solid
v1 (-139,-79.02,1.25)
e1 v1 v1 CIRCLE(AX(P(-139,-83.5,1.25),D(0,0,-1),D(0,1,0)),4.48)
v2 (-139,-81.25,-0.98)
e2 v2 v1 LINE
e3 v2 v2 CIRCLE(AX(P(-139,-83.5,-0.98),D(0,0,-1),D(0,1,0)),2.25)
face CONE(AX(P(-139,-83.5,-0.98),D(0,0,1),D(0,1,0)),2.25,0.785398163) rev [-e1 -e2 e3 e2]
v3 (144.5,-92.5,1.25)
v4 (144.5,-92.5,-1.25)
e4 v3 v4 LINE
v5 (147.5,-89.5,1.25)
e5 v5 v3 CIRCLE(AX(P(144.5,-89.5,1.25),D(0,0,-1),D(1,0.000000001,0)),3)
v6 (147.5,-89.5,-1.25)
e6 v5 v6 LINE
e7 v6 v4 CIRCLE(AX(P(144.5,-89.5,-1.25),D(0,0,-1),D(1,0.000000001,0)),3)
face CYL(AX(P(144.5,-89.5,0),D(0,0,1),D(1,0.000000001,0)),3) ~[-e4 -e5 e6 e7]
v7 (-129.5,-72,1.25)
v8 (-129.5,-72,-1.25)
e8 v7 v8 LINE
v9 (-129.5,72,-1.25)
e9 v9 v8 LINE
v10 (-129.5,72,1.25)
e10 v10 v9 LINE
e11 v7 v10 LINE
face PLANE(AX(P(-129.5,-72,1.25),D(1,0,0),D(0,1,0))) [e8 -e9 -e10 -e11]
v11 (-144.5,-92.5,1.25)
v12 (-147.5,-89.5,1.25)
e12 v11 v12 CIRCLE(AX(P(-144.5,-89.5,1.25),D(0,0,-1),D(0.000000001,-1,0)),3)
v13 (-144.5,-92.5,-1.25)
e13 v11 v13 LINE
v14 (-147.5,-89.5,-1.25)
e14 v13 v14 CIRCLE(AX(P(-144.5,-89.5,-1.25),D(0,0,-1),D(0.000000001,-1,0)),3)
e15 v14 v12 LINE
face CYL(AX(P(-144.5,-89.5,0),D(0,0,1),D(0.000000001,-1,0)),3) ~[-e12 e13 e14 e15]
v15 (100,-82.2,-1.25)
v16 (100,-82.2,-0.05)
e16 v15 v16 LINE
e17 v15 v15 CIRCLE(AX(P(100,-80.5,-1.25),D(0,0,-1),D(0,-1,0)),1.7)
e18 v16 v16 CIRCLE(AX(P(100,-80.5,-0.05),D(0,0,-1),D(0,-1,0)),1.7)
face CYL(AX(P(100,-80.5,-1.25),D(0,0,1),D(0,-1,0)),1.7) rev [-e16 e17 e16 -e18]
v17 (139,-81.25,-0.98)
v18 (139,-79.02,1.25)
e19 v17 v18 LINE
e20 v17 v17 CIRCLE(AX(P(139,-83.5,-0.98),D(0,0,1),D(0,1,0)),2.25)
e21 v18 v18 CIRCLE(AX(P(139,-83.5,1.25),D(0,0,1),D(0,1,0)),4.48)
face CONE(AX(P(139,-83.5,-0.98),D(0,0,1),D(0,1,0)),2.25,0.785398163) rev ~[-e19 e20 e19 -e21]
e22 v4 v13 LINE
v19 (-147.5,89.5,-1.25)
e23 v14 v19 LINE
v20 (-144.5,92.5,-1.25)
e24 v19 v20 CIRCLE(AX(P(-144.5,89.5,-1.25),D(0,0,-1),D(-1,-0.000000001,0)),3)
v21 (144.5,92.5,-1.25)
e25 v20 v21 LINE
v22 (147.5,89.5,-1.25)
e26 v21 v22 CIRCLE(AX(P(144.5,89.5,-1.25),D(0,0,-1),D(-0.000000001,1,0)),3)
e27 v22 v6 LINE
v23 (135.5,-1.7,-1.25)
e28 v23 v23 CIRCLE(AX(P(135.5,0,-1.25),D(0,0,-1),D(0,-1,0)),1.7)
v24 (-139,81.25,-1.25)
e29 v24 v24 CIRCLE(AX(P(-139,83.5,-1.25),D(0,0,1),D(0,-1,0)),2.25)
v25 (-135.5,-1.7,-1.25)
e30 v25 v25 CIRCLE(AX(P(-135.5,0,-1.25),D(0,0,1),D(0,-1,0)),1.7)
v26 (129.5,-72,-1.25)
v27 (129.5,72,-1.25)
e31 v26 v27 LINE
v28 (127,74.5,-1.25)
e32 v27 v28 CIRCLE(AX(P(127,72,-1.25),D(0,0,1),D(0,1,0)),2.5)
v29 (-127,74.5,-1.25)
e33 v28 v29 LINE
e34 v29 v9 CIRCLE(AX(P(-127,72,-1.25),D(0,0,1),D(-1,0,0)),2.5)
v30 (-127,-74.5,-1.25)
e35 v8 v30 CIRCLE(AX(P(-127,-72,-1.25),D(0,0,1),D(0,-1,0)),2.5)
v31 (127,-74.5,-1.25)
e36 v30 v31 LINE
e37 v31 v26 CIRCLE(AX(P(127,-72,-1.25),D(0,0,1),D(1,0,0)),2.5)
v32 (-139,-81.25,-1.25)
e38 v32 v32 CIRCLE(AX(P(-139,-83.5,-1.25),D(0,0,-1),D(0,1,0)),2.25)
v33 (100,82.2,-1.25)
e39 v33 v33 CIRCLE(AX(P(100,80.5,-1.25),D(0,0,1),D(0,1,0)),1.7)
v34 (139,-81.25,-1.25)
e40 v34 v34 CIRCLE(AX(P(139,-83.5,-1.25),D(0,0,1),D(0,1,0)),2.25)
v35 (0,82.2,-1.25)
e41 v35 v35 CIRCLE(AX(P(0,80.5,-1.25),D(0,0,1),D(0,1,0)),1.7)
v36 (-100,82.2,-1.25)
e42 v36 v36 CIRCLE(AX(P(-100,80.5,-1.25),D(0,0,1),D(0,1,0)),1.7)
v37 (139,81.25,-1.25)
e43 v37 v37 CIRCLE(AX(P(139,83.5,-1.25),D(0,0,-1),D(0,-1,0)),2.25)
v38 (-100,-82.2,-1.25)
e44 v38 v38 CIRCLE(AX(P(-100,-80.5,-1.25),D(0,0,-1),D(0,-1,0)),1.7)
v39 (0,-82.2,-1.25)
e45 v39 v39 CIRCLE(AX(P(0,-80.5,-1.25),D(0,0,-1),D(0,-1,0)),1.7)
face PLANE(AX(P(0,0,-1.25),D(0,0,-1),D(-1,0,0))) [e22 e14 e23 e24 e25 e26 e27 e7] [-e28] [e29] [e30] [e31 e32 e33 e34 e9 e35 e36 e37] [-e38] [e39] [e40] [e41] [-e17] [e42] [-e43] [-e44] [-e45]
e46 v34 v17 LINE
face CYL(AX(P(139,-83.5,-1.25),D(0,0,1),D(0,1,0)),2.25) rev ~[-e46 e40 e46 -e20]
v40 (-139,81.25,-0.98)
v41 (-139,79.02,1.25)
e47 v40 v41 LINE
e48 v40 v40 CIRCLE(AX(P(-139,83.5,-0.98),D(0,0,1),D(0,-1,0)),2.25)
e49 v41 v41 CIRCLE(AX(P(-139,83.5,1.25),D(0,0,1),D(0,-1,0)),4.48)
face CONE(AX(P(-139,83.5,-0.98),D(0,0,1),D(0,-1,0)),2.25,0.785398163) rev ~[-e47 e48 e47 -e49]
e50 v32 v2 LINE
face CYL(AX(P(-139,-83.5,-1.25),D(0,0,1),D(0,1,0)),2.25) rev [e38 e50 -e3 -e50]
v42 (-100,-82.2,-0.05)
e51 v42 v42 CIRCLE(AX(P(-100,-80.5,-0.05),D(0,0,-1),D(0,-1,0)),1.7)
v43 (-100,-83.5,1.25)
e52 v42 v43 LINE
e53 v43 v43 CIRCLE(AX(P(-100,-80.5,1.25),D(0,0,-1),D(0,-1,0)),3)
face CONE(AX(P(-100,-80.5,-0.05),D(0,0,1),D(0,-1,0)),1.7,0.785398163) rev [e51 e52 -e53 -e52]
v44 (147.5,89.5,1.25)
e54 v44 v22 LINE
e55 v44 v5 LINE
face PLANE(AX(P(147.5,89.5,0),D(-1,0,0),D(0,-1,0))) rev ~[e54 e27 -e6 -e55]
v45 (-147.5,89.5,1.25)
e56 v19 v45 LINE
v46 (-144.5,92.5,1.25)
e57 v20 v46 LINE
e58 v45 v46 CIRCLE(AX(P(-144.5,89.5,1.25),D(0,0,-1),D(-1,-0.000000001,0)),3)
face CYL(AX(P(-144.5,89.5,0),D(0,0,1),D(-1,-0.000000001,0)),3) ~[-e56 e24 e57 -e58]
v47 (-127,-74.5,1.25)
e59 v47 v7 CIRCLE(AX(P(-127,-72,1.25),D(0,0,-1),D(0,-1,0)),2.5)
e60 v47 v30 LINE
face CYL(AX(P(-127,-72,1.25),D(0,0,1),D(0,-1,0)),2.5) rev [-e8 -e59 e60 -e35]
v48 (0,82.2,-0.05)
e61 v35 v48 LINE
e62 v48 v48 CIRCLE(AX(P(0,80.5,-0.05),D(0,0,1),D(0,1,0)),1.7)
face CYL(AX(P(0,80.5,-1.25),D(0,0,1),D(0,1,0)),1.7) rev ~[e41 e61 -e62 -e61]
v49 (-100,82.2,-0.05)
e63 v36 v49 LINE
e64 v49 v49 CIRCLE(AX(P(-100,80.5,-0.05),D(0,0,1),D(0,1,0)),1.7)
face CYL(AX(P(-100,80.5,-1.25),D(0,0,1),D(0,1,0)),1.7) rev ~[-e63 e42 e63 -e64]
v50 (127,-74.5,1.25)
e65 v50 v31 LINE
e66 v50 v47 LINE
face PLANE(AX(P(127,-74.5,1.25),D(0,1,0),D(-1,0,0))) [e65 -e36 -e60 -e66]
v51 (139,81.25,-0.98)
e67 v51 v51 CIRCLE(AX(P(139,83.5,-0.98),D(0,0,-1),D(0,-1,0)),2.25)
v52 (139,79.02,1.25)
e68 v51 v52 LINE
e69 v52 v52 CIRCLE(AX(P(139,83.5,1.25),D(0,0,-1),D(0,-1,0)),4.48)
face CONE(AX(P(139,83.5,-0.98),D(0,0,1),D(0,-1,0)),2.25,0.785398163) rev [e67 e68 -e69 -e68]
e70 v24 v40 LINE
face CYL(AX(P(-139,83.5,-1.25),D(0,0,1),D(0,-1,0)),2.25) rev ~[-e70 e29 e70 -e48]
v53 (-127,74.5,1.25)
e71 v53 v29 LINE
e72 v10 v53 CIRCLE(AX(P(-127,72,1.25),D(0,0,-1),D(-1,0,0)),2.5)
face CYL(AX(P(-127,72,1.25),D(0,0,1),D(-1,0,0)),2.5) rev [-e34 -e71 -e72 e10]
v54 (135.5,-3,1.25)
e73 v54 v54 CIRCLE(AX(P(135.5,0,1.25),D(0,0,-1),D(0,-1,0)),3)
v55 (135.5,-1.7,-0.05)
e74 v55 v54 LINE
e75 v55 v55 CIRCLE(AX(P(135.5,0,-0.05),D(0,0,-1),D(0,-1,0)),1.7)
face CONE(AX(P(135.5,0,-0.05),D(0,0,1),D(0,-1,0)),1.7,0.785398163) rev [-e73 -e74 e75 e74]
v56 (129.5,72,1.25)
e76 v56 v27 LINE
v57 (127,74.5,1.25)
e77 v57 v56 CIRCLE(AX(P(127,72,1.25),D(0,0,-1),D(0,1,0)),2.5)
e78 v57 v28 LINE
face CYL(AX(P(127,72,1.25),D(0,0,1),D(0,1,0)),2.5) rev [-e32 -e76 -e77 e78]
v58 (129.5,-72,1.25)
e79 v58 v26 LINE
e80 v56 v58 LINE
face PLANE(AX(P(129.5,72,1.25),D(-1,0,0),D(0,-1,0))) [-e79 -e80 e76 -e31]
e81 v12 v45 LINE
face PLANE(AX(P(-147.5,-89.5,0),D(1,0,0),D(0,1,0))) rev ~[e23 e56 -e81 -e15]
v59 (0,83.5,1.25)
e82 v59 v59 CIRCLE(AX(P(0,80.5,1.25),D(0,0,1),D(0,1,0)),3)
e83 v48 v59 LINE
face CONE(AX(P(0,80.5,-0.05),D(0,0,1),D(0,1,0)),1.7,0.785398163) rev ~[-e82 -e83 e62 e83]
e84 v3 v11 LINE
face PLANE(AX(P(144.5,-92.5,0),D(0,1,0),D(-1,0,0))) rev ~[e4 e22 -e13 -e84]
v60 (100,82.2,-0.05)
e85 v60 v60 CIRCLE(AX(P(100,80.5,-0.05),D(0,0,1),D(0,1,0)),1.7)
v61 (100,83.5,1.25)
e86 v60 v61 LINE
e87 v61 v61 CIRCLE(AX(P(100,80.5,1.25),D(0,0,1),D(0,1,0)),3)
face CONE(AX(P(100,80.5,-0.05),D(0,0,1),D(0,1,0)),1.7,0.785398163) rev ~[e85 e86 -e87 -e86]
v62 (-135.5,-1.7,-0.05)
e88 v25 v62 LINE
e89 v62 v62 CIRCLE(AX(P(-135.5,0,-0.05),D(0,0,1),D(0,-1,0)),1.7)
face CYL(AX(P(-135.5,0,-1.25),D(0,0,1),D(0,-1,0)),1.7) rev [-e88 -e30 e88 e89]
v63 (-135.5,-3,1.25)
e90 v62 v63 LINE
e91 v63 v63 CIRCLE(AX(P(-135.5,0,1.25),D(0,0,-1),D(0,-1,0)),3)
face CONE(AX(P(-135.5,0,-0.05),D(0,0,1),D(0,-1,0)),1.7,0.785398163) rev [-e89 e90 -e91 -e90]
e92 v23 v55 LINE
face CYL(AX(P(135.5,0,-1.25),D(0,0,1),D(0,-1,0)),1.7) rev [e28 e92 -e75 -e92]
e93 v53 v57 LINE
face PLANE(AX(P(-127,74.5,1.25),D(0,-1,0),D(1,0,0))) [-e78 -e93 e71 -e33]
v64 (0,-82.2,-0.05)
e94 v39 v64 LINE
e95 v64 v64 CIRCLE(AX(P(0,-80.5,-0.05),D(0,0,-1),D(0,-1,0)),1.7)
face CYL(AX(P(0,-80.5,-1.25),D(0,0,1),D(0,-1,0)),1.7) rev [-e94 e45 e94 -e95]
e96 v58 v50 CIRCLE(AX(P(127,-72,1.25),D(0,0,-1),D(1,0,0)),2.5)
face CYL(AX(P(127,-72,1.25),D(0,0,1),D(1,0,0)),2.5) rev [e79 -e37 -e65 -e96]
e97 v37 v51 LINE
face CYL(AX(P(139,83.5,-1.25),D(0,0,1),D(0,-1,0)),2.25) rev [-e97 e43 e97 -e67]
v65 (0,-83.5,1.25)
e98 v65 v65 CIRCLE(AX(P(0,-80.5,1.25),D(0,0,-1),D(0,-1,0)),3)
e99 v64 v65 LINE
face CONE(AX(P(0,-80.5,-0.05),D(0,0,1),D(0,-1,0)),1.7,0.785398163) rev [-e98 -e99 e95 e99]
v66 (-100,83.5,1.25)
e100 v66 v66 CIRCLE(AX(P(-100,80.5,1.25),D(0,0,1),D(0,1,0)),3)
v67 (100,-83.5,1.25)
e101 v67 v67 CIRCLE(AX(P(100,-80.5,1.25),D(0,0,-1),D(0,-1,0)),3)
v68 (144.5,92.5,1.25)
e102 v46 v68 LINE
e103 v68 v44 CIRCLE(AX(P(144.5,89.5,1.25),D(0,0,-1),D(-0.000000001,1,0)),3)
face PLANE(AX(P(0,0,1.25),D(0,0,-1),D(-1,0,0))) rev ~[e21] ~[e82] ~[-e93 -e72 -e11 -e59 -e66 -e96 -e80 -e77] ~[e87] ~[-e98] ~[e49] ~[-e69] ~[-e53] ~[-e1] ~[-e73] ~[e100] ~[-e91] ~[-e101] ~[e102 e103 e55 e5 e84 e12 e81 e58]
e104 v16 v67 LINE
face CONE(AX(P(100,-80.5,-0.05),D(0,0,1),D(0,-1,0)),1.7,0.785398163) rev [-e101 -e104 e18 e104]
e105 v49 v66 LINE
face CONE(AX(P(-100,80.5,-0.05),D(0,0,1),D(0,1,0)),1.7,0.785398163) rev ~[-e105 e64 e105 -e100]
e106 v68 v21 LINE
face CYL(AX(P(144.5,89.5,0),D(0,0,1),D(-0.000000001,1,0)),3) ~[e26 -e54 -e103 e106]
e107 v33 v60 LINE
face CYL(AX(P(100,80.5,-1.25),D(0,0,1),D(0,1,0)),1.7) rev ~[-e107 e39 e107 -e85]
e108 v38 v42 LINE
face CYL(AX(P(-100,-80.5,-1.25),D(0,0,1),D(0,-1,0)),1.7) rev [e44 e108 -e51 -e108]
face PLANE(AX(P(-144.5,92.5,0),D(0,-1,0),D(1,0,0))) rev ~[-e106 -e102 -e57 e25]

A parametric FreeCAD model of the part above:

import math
import FreeCAD as App
import Part
import Sketcher
from FreeCAD import Vector
Q = App.Units.Quantity

doc = App.newDocument("Part")
params = doc.addObject("Spreadsheet::Sheet", "Params")
for row, (alias, value) in enumerate([
    ("sketch1_radius", "3 mm"),
    ("sketch1_width", "289 mm"),
    ("sketch1_height", "179 mm"),
    ("pad1_length", "2.5 mm"),
    ("sketch2_radius", "2.5 mm"),
    ("sketch2_width", "254 mm"),
    ("sketch2_height", "144 mm"),
    ("sketch3_height", "2.5 mm"),
    ("sketch3_width", "4.48 mm"),
    ("sketch3_width2", "2.25 mm"),
    ("groove_angle", "360 deg"),
    ("sketch4_width", "3 mm"),
    ("sketch4_width2", "1.7 mm"),
    ("sketch4_height", "2.5 mm"),
    ("groove2_angle", "360 deg"),
    ("linearpattern_pitch", "100 mm"),
    ("linearpattern2_pitch", "100 mm"),
    ("linearpattern3_pitch", "157.608693 mm"),
    ("linearpattern4_pitch", "157.608693 mm"),
    ("sketch5_width", "3 mm"),
    ("sketch5_width2", "1.7 mm"),
    ("sketch5_height", "2.5 mm"),
    ("groove3_angle", "360 deg"),
    ("sketch6_width", "3 mm"),
    ("sketch6_width2", "1.7 mm"),
    ("sketch6_height", "2.5 mm"),
    ("groove4_angle", "360 deg"),
    ("sketch7_width", "3 mm"),
    ("sketch7_width2", "1.7 mm"),
    ("sketch7_height", "2.5 mm"),
    ("groove5_angle", "360 deg"),
    ("sketch8_width", "3 mm"),
    ("sketch8_width2", "1.7 mm"),
    ("sketch8_height", "2.5 mm"),
    ("groove6_angle", "360 deg"),
    ("sketch9_height", "2.5 mm"),
    ("sketch9_width", "4.48 mm"),
    ("sketch9_width2", "2.25 mm"),
    ("groove7_angle", "360 deg"),
], start=1):
    params.set(f"A{row}", alias)
    params.set(f"B{row}", "=" + value)
    params.setAlias(f"B{row}", alias)

body = doc.addObject("PartDesign::Body", "Body")

# Sketch on XY plane
sketch1 = doc.addObject("Sketcher::SketchObject", "Sketch")
body.addObject(sketch1)
sketch1.AttachmentSupport = (doc.XY_Plane, [""])
sketch1.MapMode = "FlatFace"
sketch1.addGeometry(Part.LineSegment(Vector(144.5, 92.5, 0), Vector(-144.5, 92.5, 0)), False)
sketch1.addGeometry(Part.ArcOfCircle(Part.Circle(Vector(-144.5, 89.5, 0), Vector(0, 0, 1), 3), math.radians(90), math.radians(180)), False)
sketch1.addGeometry(Part.LineSegment(Vector(-147.5, 89.5, 0), Vector(-147.5, -89.5, 0)), False)
sketch1.addGeometry(Part.ArcOfCircle(Part.Circle(Vector(-144.5, -89.5, 0), Vector(0, 0, 1), 3), math.radians(180), math.radians(270)), False)
sketch1.addGeometry(Part.LineSegment(Vector(-144.5, -92.5, 0), Vector(144.5, -92.5, 0)), False)
sketch1.addGeometry(Part.ArcOfCircle(Part.Circle(Vector(144.5, -89.5, 0), Vector(0, 0, 1), 3), math.radians(-90), math.radians(0)), False)
sketch1.addGeometry(Part.LineSegment(Vector(147.5, -89.5, 0), Vector(147.5, 89.5, 0)), False)
sketch1.addGeometry(Part.ArcOfCircle(Part.Circle(Vector(144.5, 89.5, 0), Vector(0, 0, 1), 3), math.radians(0), math.radians(90)), False)
sketch1.addConstraint(Sketcher.Constraint("Tangent", 0, 2, 1, 1))
sketch1.addConstraint(Sketcher.Constraint("Tangent", 1, 2, 2, 1))
sketch1.addConstraint(Sketcher.Constraint("Tangent", 2, 2, 3, 1))
sketch1.addConstraint(Sketcher.Constraint("Tangent", 3, 2, 4, 1))
sketch1.addConstraint(Sketcher.Constraint("Tangent", 4, 2, 5, 1))
sketch1.addConstraint(Sketcher.Constraint("Tangent", 5, 2, 6, 1))
sketch1.addConstraint(Sketcher.Constraint("Tangent", 6, 2, 7, 1))
sketch1.addConstraint(Sketcher.Constraint("Tangent", 7, 2, 0, 1))
sketch1.addConstraint(Sketcher.Constraint("Horizontal", 0))
sketch1.addConstraint(Sketcher.Constraint("Vertical", 2))
sketch1.addConstraint(Sketcher.Constraint("Horizontal", 4))
sketch1.addConstraint(Sketcher.Constraint("Vertical", 6))
sketch1.addConstraint(Sketcher.Constraint("Equal", 1, 3))
sketch1.addConstraint(Sketcher.Constraint("Equal", 3, 5))
sketch1.addConstraint(Sketcher.Constraint("Equal", 5, 7))
sketch1.addConstraint(Sketcher.Constraint("Symmetric", 1, 3, 5, 3, -1, 1))
sketch1.addConstraint(Sketcher.Constraint("Radius", 1, Q("3 mm")))
sketch1.addConstraint(Sketcher.Constraint("DistanceX", 0, 2, 0, 1, Q("289 mm")))
sketch1.addConstraint(Sketcher.Constraint("DistanceY", 2, 2, 2, 1, Q("179 mm")))
sketch1.setExpression("Constraints[16]", "Params.sketch1_radius")
sketch1.setExpression("Constraints[17]", "Params.sketch1_width")
sketch1.setExpression("Constraints[18]", "Params.sketch1_height")
pad1 = doc.addObject("PartDesign::Pad", "Pad")
body.addObject(pad1)
pad1.Profile = sketch1
pad1.setExpression("Length", "Params.pad1_length")
pad1.Midplane = True

# Sketch on XY plane
sketch2 = doc.addObject("Sketcher::SketchObject", "Sketch001")
body.addObject(sketch2)
sketch2.AttachmentSupport = (doc.XY_Plane, [""])
sketch2.MapMode = "FlatFace"
sketch2.AttachmentOffset = App.Placement(Vector(0, 0, 1.25), App.Rotation())
sketch2.addGeometry(Part.LineSegment(Vector(127, 74.5, 0), Vector(-127, 74.5, 0)), False)
sketch2.addGeometry(Part.ArcOfCircle(Part.Circle(Vector(-127, 72, 0), Vector(0, 0, 1), 2.5), math.radians(90), math.radians(180)), False)
sketch2.addGeometry(Part.LineSegment(Vector(-129.5, 72, 0), Vector(-129.5, -72, 0)), False)
sketch2.addGeometry(Part.ArcOfCircle(Part.Circle(Vector(-127, -72, 0), Vector(0, 0, 1), 2.5), math.radians(180), math.radians(270)), False)
sketch2.addGeometry(Part.LineSegment(Vector(-127, -74.5, 0), Vector(127, -74.5, 0)), False)
sketch2.addGeometry(Part.ArcOfCircle(Part.Circle(Vector(127, -72, 0), Vector(0, 0, 1), 2.5), math.radians(-90), math.radians(0)), False)
sketch2.addGeometry(Part.LineSegment(Vector(129.5, -72, 0), Vector(129.5, 72, 0)), False)
sketch2.addGeometry(Part.ArcOfCircle(Part.Circle(Vector(127, 72, 0), Vector(0, 0, 1), 2.5), math.radians(0), math.radians(90)), False)
sketch2.addConstraint(Sketcher.Constraint("Tangent", 0, 2, 1, 1))
sketch2.addConstraint(Sketcher.Constraint("Tangent", 1, 2, 2, 1))
sketch2.addConstraint(Sketcher.Constraint("Tangent", 2, 2, 3, 1))
sketch2.addConstraint(Sketcher.Constraint("Tangent", 3, 2, 4, 1))
sketch2.addConstraint(Sketcher.Constraint("Tangent", 4, 2, 5, 1))
sketch2.addConstraint(Sketcher.Constraint("Tangent", 5, 2, 6, 1))
sketch2.addConstraint(Sketcher.Constraint("Tangent", 6, 2, 7, 1))
sketch2.addConstraint(Sketcher.Constraint("Tangent", 7, 2, 0, 1))
sketch2.addConstraint(Sketcher.Constraint("Horizontal", 0))
sketch2.addConstraint(Sketcher.Constraint("Vertical", 2))
sketch2.addConstraint(Sketcher.Constraint("Horizontal", 4))
sketch2.addConstraint(Sketcher.Constraint("Vertical", 6))
sketch2.addConstraint(Sketcher.Constraint("Equal", 1, 3))
sketch2.addConstraint(Sketcher.Constraint("Equal", 3, 5))
sketch2.addConstraint(Sketcher.Constraint("Equal", 5, 7))
sketch2.addConstraint(Sketcher.Constraint("Symmetric", 1, 3, 5, 3, -1, 1))
sketch2.addConstraint(Sketcher.Constraint("Radius", 1, Q("2.5 mm")))
sketch2.addConstraint(Sketcher.Constraint("DistanceX", 0, 2, 0, 1, Q("254 mm")))
sketch2.addConstraint(Sketcher.Constraint("DistanceY", 2, 2, 2, 1, Q("144 mm")))
sketch2.setExpression("Constraints[16]", "Params.sketch2_radius")
sketch2.setExpression("Constraints[17]", "Params.sketch2_width")
sketch2.setExpression("Constraints[18]", "Params.sketch2_height")
pocket1 = doc.addObject("PartDesign::Pocket", "Pocket")
body.addObject(pocket1)
pocket1.Profile = sketch2
pocket1.Type = "ThroughAll"

# Sketch on YZ plane
sketch3 = doc.addObject("Sketcher::SketchObject", "Sketch002")
body.addObject(sketch3)
sketch3.AttachmentSupport = (doc.YZ_Plane, [""])
sketch3.MapMode = "FlatFace"
sketch3.AttachmentOffset = App.Placement(Vector(0, 0, 139), App.Rotation())
sketch3.addGeometry(Part.LineSegment(Vector(83.5, -1.25, 0), Vector(83.5, 1.25, 0)), False)
sketch3.addGeometry(Part.LineSegment(Vector(83.5, 1.25, 0), Vector(79.02, 1.25, 0)), False)
sketch3.addGeometry(Part.LineSegment(Vector(79.02, 1.25, 0), Vector(81.25, -0.98, 0)), False)
sketch3.addGeometry(Part.LineSegment(Vector(81.25, -0.98, 0), Vector(81.25, -1.25, 0)), False)
sketch3.addGeometry(Part.LineSegment(Vector(81.25, -1.25, 0), Vector(83.5, -1.25, 0)), False)
sketch3.addGeometry(Part.LineSegment(Vector(83.5, 1.25, 0), Vector(83.5, -1.25, 0)), True)  # axis
sketch3.addConstraint(Sketcher.Constraint("Coincident", 0, 2, 1, 1))
sketch3.addConstraint(Sketcher.Constraint("Coincident", 1, 2, 2, 1))
sketch3.addConstraint(Sketcher.Constraint("Coincident", 2, 2, 3, 1))
sketch3.addConstraint(Sketcher.Constraint("Coincident", 3, 2, 4, 1))
sketch3.addConstraint(Sketcher.Constraint("Coincident", 4, 2, 0, 1))
sketch3.addConstraint(Sketcher.Constraint("Vertical", 0))
sketch3.addConstraint(Sketcher.Constraint("Horizontal", 1))
sketch3.addConstraint(Sketcher.Constraint("Vertical", 3))
sketch3.addConstraint(Sketcher.Constraint("Horizontal", 4))
sketch3.addConstraint(Sketcher.Constraint("Vertical", 5))
sketch3.addConstraint(Sketcher.Constraint("Coincident", 5, 1, 0, 2))
sketch3.addConstraint(Sketcher.Constraint("Horizontal", 3, 2, 5, 2))
sketch3.addConstraint(Sketcher.Constraint("Angle", 2, Q("-45 deg")))
sketch3.addConstraint(Sketcher.Constraint("DistanceY", 0, 1, 0, 2, Q("2.5 mm")))
sketch3.addConstraint(Sketcher.Constraint("DistanceX", 1, 2, 1, 1, Q("4.48 mm")))
sketch3.addConstraint(Sketcher.Constraint("DistanceX", 4, 1, 4, 2, Q("2.25 mm")))
sketch3.addConstraint(Sketcher.Constraint("DistanceX", -1, 1, 0, 2, Q("83.5 mm")))
sketch3.addConstraint(Sketcher.Constraint("DistanceY", -1, 1, 0, 2, Q("1.25 mm")))
sketch3.setExpression("Constraints[13]", "Params.sketch3_height")
sketch3.setExpression("Constraints[14]", "Params.sketch3_width")
sketch3.setExpression("Constraints[15]", "Params.sketch3_width2")
groove = doc.addObject("PartDesign::Groove", "Groove")
body.addObject(groove)
groove.Profile = sketch3
groove.ReferenceAxis = (sketch3, ["Axis0"])
groove.setExpression("Angle", "Params.groove_angle")

# Sketch on YZ plane
sketch4 = doc.addObject("Sketcher::SketchObject", "Sketch003")
body.addObject(sketch4)
sketch4.AttachmentSupport = (doc.YZ_Plane, [""])
sketch4.MapMode = "FlatFace"
sketch4.addGeometry(Part.LineSegment(Vector(-80.5, -1.25, 0), Vector(-80.5, 1.25, 0)), False)
sketch4.addGeometry(Part.LineSegment(Vector(-80.5, 1.25, 0), Vector(-83.5, 1.25, 0)), False)
sketch4.addGeometry(Part.LineSegment(Vector(-83.5, 1.25, 0), Vector(-82.2, -0.05, 0)), False)
sketch4.addGeometry(Part.LineSegment(Vector(-82.2, -0.05, 0), Vector(-82.2, -1.25, 0)), False)
sketch4.addGeometry(Part.LineSegment(Vector(-82.2, -1.25, 0), Vector(-80.5, -1.25, 0)), False)
sketch4.addGeometry(Part.LineSegment(Vector(-80.5, 1.25, 0), Vector(-80.5, -1.25, 0)), True)  # axis
sketch4.addConstraint(Sketcher.Constraint("Coincident", 0, 2, 1, 1))
sketch4.addConstraint(Sketcher.Constraint("Coincident", 1, 2, 2, 1))
sketch4.addConstraint(Sketcher.Constraint("Coincident", 2, 2, 3, 1))
sketch4.addConstraint(Sketcher.Constraint("Coincident", 3, 2, 4, 1))
sketch4.addConstraint(Sketcher.Constraint("Coincident", 4, 2, 0, 1))
sketch4.addConstraint(Sketcher.Constraint("Vertical", 0))
sketch4.addConstraint(Sketcher.Constraint("Horizontal", 1))
sketch4.addConstraint(Sketcher.Constraint("Vertical", 3))
sketch4.addConstraint(Sketcher.Constraint("Horizontal", 4))
sketch4.addConstraint(Sketcher.Constraint("Vertical", 5))
sketch4.addConstraint(Sketcher.Constraint("Coincident", 5, 1, 0, 2))
sketch4.addConstraint(Sketcher.Constraint("Horizontal", 3, 2, 5, 2))
sketch4.addConstraint(Sketcher.Constraint("DistanceX", 1, 2, 1, 1, Q("3 mm")))
sketch4.addConstraint(Sketcher.Constraint("Angle", 2, Q("-45 deg")))
sketch4.addConstraint(Sketcher.Constraint("DistanceX", 4, 1, 4, 2, Q("1.7 mm")))
sketch4.addConstraint(Sketcher.Constraint("DistanceY", 0, 1, 0, 2, Q("2.5 mm")))
sketch4.addConstraint(Sketcher.Constraint("DistanceX", 0, 2, -1, 1, Q("80.5 mm")))
sketch4.addConstraint(Sketcher.Constraint("DistanceY", -1, 1, 0, 2, Q("1.25 mm")))
sketch4.setExpression("Constraints[12]", "Params.sketch4_width")
sketch4.setExpression("Constraints[14]", "Params.sketch4_width2")
sketch4.setExpression("Constraints[15]", "Params.sketch4_height")
groove2 = doc.addObject("PartDesign::Groove", "Groove001")
body.addObject(groove2)
groove2.Profile = sketch4
groove2.ReferenceAxis = (sketch4, ["Axis0"])
groove2.setExpression("Angle", "Params.groove2_angle")
doc.recompute()

linearpattern = doc.addObject("PartDesign::LinearPattern", "LinearPattern")
body.addObject(linearpattern)
linearpattern.Originals = [groove2]
linearpattern.Direction = (doc.X_Axis, [""])
linearpattern.Mode = "offset"
linearpattern.setExpression("Offset", "Params.linearpattern_pitch")
linearpattern.Occurrences = 2
linearpattern.Reversed = True
body.Tip = linearpattern
doc.recompute()

linearpattern2 = doc.addObject("PartDesign::LinearPattern", "LinearPattern001")
body.addObject(linearpattern2)
linearpattern2.Originals = [groove2]
linearpattern2.Direction = (doc.X_Axis, [""])
linearpattern2.Mode = "offset"
linearpattern2.setExpression("Offset", "Params.linearpattern2_pitch")
linearpattern2.Occurrences = 2
body.Tip = linearpattern2
doc.recompute()

datumline = doc.addObject("PartDesign::Line", "DatumLine")
body.addObject(datumline)
datumline.Placement = App.Placement(Vector(0, 0, 0), App.Rotation(Vector(0, 0, 1), Vector(-0.859724154, 0.51075863, 0)))
linearpattern3 = doc.addObject("PartDesign::LinearPattern", "LinearPattern002")
body.addObject(linearpattern3)
linearpattern3.Originals = [groove2]
linearpattern3.Direction = (datumline, [""])
linearpattern3.Mode = "offset"
linearpattern3.setExpression("Offset", "Params.linearpattern3_pitch")
linearpattern3.Occurrences = 2
body.Tip = linearpattern3
doc.recompute()

datumline2 = doc.addObject("PartDesign::Line", "DatumLine001")
body.addObject(datumline2)
datumline2.Placement = App.Placement(Vector(0, 0, 0), App.Rotation(Vector(0, 0, 1), Vector(0.859724154, 0.51075863, 0)))
linearpattern4 = doc.addObject("PartDesign::LinearPattern", "LinearPattern003")
body.addObject(linearpattern4)
linearpattern4.Originals = [groove2]
linearpattern4.Direction = (datumline2, [""])
linearpattern4.Mode = "offset"
linearpattern4.setExpression("Offset", "Params.linearpattern4_pitch")
linearpattern4.Occurrences = 2
body.Tip = linearpattern4
doc.recompute()

mirrored = doc.addObject("PartDesign::Mirrored", "Mirrored")
body.addObject(mirrored)
mirrored.Originals = [groove2]
mirrored.MirrorPlane = (doc.XZ_Plane, [""])
body.Tip = mirrored

# Sketch on YZ plane
sketch5 = doc.addObject("Sketcher::SketchObject", "Sketch004")
body.addObject(sketch5)
sketch5.AttachmentSupport = (doc.YZ_Plane, [""])
sketch5.MapMode = "FlatFace"
sketch5.AttachmentOffset = App.Placement(Vector(0, 0, -100), App.Rotation())
sketch5.addGeometry(Part.LineSegment(Vector(80.5, 1.25, 0), Vector(80.5, -1.25, 0)), False)
sketch5.addGeometry(Part.LineSegment(Vector(80.5, -1.25, 0), Vector(82.2, -1.25, 0)), False)
sketch5.addGeometry(Part.LineSegment(Vector(82.2, -1.25, 0), Vector(82.2, -0.05, 0)), False)
sketch5.addGeometry(Part.LineSegment(Vector(82.2, -0.05, 0), Vector(83.5, 1.25, 0)), False)
sketch5.addGeometry(Part.LineSegment(Vector(83.5, 1.25, 0), Vector(80.5, 1.25, 0)), False)
sketch5.addGeometry(Part.LineSegment(Vector(80.5, -1.25, 0), Vector(80.5, 1.25, 0)), True)  # axis
sketch5.addConstraint(Sketcher.Constraint("Coincident", 0, 2, 1, 1))
sketch5.addConstraint(Sketcher.Constraint("Coincident", 1, 2, 2, 1))
sketch5.addConstraint(Sketcher.Constraint("Coincident", 2, 2, 3, 1))
sketch5.addConstraint(Sketcher.Constraint("Coincident", 3, 2, 4, 1))
sketch5.addConstraint(Sketcher.Constraint("Coincident", 4, 2, 0, 1))
sketch5.addConstraint(Sketcher.Constraint("Vertical", 0))
sketch5.addConstraint(Sketcher.Constraint("Horizontal", 1))
sketch5.addConstraint(Sketcher.Constraint("Vertical", 2))
sketch5.addConstraint(Sketcher.Constraint("Horizontal", 4))
sketch5.addConstraint(Sketcher.Constraint("Vertical", 5))
sketch5.addConstraint(Sketcher.Constraint("Coincident", 5, 1, 0, 2))
sketch5.addConstraint(Sketcher.Constraint("Horizontal", 3, 2, 5, 2))
sketch5.addConstraint(Sketcher.Constraint("DistanceX", 4, 2, 4, 1, Q("3 mm")))
sketch5.addConstraint(Sketcher.Constraint("Angle", 3, Q("45 deg")))
sketch5.addConstraint(Sketcher.Constraint("DistanceX", 1, 1, 1, 2, Q("1.7 mm")))
sketch5.addConstraint(Sketcher.Constraint("DistanceY", 0, 2, 0, 1, Q("2.5 mm")))
sketch5.addConstraint(Sketcher.Constraint("DistanceX", -1, 1, 0, 2, Q("80.5 mm")))
sketch5.addConstraint(Sketcher.Constraint("DistanceY", 0, 2, -1, 1, Q("1.25 mm")))
sketch5.setExpression("Constraints[12]", "Params.sketch5_width")
sketch5.setExpression("Constraints[14]", "Params.sketch5_width2")
sketch5.setExpression("Constraints[15]", "Params.sketch5_height")
groove3 = doc.addObject("PartDesign::Groove", "Groove002")
body.addObject(groove3)
groove3.Profile = sketch5
groove3.ReferenceAxis = (sketch5, ["Axis0"])
groove3.setExpression("Angle", "Params.groove3_angle")

# Sketch on YZ plane
sketch6 = doc.addObject("Sketcher::SketchObject", "Sketch005")
body.addObject(sketch6)
sketch6.AttachmentSupport = (doc.YZ_Plane, [""])
sketch6.MapMode = "FlatFace"
sketch6.AttachmentOffset = App.Placement(Vector(0, 0, 100), App.Rotation())
sketch6.addGeometry(Part.LineSegment(Vector(80.5, 1.25, 0), Vector(80.5, -1.25, 0)), False)
sketch6.addGeometry(Part.LineSegment(Vector(80.5, -1.25, 0), Vector(82.2, -1.25, 0)), False)
sketch6.addGeometry(Part.LineSegment(Vector(82.2, -1.25, 0), Vector(82.2, -0.05, 0)), False)
sketch6.addGeometry(Part.LineSegment(Vector(82.2, -0.05, 0), Vector(83.5, 1.25, 0)), False)
sketch6.addGeometry(Part.LineSegment(Vector(83.5, 1.25, 0), Vector(80.5, 1.25, 0)), False)
sketch6.addGeometry(Part.LineSegment(Vector(80.5, -1.25, 0), Vector(80.5, 1.25, 0)), True)  # axis
sketch6.addConstraint(Sketcher.Constraint("Coincident", 0, 2, 1, 1))
sketch6.addConstraint(Sketcher.Constraint("Coincident", 1, 2, 2, 1))
sketch6.addConstraint(Sketcher.Constraint("Coincident", 2, 2, 3, 1))
sketch6.addConstraint(Sketcher.Constraint("Coincident", 3, 2, 4, 1))
sketch6.addConstraint(Sketcher.Constraint("Coincident", 4, 2, 0, 1))
sketch6.addConstraint(Sketcher.Constraint("Vertical", 0))
sketch6.addConstraint(Sketcher.Constraint("Horizontal", 1))
sketch6.addConstraint(Sketcher.Constraint("Vertical", 2))
sketch6.addConstraint(Sketcher.Constraint("Horizontal", 4))
sketch6.addConstraint(Sketcher.Constraint("Vertical", 5))
sketch6.addConstraint(Sketcher.Constraint("Coincident", 5, 1, 0, 2))
sketch6.addConstraint(Sketcher.Constraint("Horizontal", 3, 2, 5, 2))
sketch6.addConstraint(Sketcher.Constraint("DistanceX", 4, 2, 4, 1, Q("3 mm")))
sketch6.addConstraint(Sketcher.Constraint("Angle", 3, Q("45 deg")))
sketch6.addConstraint(Sketcher.Constraint("DistanceX", 1, 1, 1, 2, Q("1.7 mm")))
sketch6.addConstraint(Sketcher.Constraint("DistanceY", 0, 2, 0, 1, Q("2.5 mm")))
sketch6.addConstraint(Sketcher.Constraint("DistanceX", -1, 1, 0, 2, Q("80.5 mm")))
sketch6.addConstraint(Sketcher.Constraint("DistanceY", 0, 2, -1, 1, Q("1.25 mm")))
sketch6.setExpression("Constraints[12]", "Params.sketch6_width")
sketch6.setExpression("Constraints[14]", "Params.sketch6_width2")
sketch6.setExpression("Constraints[15]", "Params.sketch6_height")
groove4 = doc.addObject("PartDesign::Groove", "Groove003")
body.addObject(groove4)
groove4.Profile = sketch6
groove4.ReferenceAxis = (sketch6, ["Axis0"])
groove4.setExpression("Angle", "Params.groove4_angle")

# Sketch on YZ plane
sketch7 = doc.addObject("Sketcher::SketchObject", "Sketch006")
body.addObject(sketch7)
sketch7.AttachmentSupport = (doc.YZ_Plane, [""])
sketch7.MapMode = "FlatFace"
sketch7.AttachmentOffset = App.Placement(Vector(0, 0, -135.5), App.Rotation())
sketch7.addGeometry(Part.LineSegment(Vector(0, 1.25, 0), Vector(0, -1.25, 0)), False)
sketch7.addGeometry(Part.LineSegment(Vector(0, -1.25, 0), Vector(1.7, -1.25, 0)), False)
sketch7.addGeometry(Part.LineSegment(Vector(1.7, -1.25, 0), Vector(1.7, -0.05, 0)), False)
sketch7.addGeometry(Part.LineSegment(Vector(1.7, -0.05, 0), Vector(3, 1.25, 0)), False)
sketch7.addGeometry(Part.LineSegment(Vector(3, 1.25, 0), Vector(0, 1.25, 0)), False)
sketch7.addConstraint(Sketcher.Constraint("Coincident", 0, 2, 1, 1))
sketch7.addConstraint(Sketcher.Constraint("Coincident", 1, 2, 2, 1))
sketch7.addConstraint(Sketcher.Constraint("Coincident", 2, 2, 3, 1))
sketch7.addConstraint(Sketcher.Constraint("Coincident", 3, 2, 4, 1))
sketch7.addConstraint(Sketcher.Constraint("Coincident", 4, 2, 0, 1))
sketch7.addConstraint(Sketcher.Constraint("Vertical", 0))
sketch7.addConstraint(Sketcher.Constraint("Horizontal", 1))
sketch7.addConstraint(Sketcher.Constraint("Vertical", 2))
sketch7.addConstraint(Sketcher.Constraint("Horizontal", 4))
sketch7.addConstraint(Sketcher.Constraint("Symmetric", 0, 2, 4, 2, -1, 1))
sketch7.addConstraint(Sketcher.Constraint("DistanceX", 4, 2, 4, 1, Q("3 mm")))
sketch7.addConstraint(Sketcher.Constraint("Angle", 3, Q("45 deg")))
sketch7.addConstraint(Sketcher.Constraint("DistanceX", 1, 1, 1, 2, Q("1.7 mm")))
sketch7.addConstraint(Sketcher.Constraint("DistanceY", 0, 2, 0, 1, Q("2.5 mm")))
sketch7.setExpression("Constraints[10]", "Params.sketch7_width")
sketch7.setExpression("Constraints[12]", "Params.sketch7_width2")
sketch7.setExpression("Constraints[13]", "Params.sketch7_height")
groove5 = doc.addObject("PartDesign::Groove", "Groove004")
body.addObject(groove5)
groove5.Profile = sketch7
groove5.ReferenceAxis = (sketch7, ["V_Axis"])
groove5.setExpression("Angle", "Params.groove5_angle")

# Sketch on YZ plane
sketch8 = doc.addObject("Sketcher::SketchObject", "Sketch007")
body.addObject(sketch8)
sketch8.AttachmentSupport = (doc.YZ_Plane, [""])
sketch8.MapMode = "FlatFace"
sketch8.AttachmentOffset = App.Placement(Vector(0, 0, 135.5), App.Rotation())
sketch8.addGeometry(Part.LineSegment(Vector(0, 1.25, 0), Vector(0, -1.25, 0)), False)
sketch8.addGeometry(Part.LineSegment(Vector(0, -1.25, 0), Vector(1.7, -1.25, 0)), False)
sketch8.addGeometry(Part.LineSegment(Vector(1.7, -1.25, 0), Vector(1.7, -0.05, 0)), False)
sketch8.addGeometry(Part.LineSegment(Vector(1.7, -0.05, 0), Vector(3, 1.25, 0)), False)
sketch8.addGeometry(Part.LineSegment(Vector(3, 1.25, 0), Vector(0, 1.25, 0)), False)
sketch8.addConstraint(Sketcher.Constraint("Coincident", 0, 2, 1, 1))
sketch8.addConstraint(Sketcher.Constraint("Coincident", 1, 2, 2, 1))
sketch8.addConstraint(Sketcher.Constraint("Coincident", 2, 2, 3, 1))
sketch8.addConstraint(Sketcher.Constraint("Coincident", 3, 2, 4, 1))
sketch8.addConstraint(Sketcher.Constraint("Coincident", 4, 2, 0, 1))
sketch8.addConstraint(Sketcher.Constraint("Vertical", 0))
sketch8.addConstraint(Sketcher.Constraint("Horizontal", 1))
sketch8.addConstraint(Sketcher.Constraint("Vertical", 2))
sketch8.addConstraint(Sketcher.Constraint("Horizontal", 4))
sketch8.addConstraint(Sketcher.Constraint("Symmetric", 0, 2, 4, 2, -1, 1))
sketch8.addConstraint(Sketcher.Constraint("DistanceX", 4, 2, 4, 1, Q("3 mm")))
sketch8.addConstraint(Sketcher.Constraint("Angle", 3, Q("45 deg")))
sketch8.addConstraint(Sketcher.Constraint("DistanceX", 1, 1, 1, 2, Q("1.7 mm")))
sketch8.addConstraint(Sketcher.Constraint("DistanceY", 0, 2, 0, 1, Q("2.5 mm")))
sketch8.setExpression("Constraints[10]", "Params.sketch8_width")
sketch8.setExpression("Constraints[12]", "Params.sketch8_width2")
sketch8.setExpression("Constraints[13]", "Params.sketch8_height")
groove6 = doc.addObject("PartDesign::Groove", "Groove005")
body.addObject(groove6)
groove6.Profile = sketch8
groove6.ReferenceAxis = (sketch8, ["V_Axis"])
groove6.setExpression("Angle", "Params.groove6_angle")
doc.recompute()

mirrored2 = doc.addObject("PartDesign::Mirrored", "Mirrored001")
body.addObject(mirrored2)
mirrored2.Originals = [groove]
mirrored2.MirrorPlane = (doc.YZ_Plane, [""])
body.Tip = mirrored2
doc.recompute()

mirrored3 = doc.addObject("PartDesign::Mirrored", "Mirrored002")
body.addObject(mirrored3)
mirrored3.Originals = [groove]
mirrored3.MirrorPlane = (doc.XZ_Plane, [""])
body.Tip = mirrored3

# Sketch on YZ plane
sketch9 = doc.addObject("Sketcher::SketchObject", "Sketch008")
body.addObject(sketch9)
sketch9.AttachmentSupport = (doc.YZ_Plane, [""])
sketch9.MapMode = "FlatFace"
sketch9.AttachmentOffset = App.Placement(Vector(0, 0, -139), App.Rotation())
sketch9.addGeometry(Part.LineSegment(Vector(-83.5, -1.25, 0), Vector(-83.5, 1.25, 0)), False)
sketch9.addGeometry(Part.LineSegment(Vector(-83.5, 1.25, 0), Vector(-79.02, 1.25, 0)), False)
sketch9.addGeometry(Part.LineSegment(Vector(-79.02, 1.25, 0), Vector(-81.25, -0.98, 0)), False)
sketch9.addGeometry(Part.LineSegment(Vector(-81.25, -0.98, 0), Vector(-81.25, -1.25, 0)), False)
sketch9.addGeometry(Part.LineSegment(Vector(-81.25, -1.25, 0), Vector(-83.5, -1.25, 0)), False)
sketch9.addGeometry(Part.LineSegment(Vector(-83.5, 1.25, 0), Vector(-83.5, -1.25, 0)), True)  # axis
sketch9.addConstraint(Sketcher.Constraint("Coincident", 0, 2, 1, 1))
sketch9.addConstraint(Sketcher.Constraint("Coincident", 1, 2, 2, 1))
sketch9.addConstraint(Sketcher.Constraint("Coincident", 2, 2, 3, 1))
sketch9.addConstraint(Sketcher.Constraint("Coincident", 3, 2, 4, 1))
sketch9.addConstraint(Sketcher.Constraint("Coincident", 4, 2, 0, 1))
sketch9.addConstraint(Sketcher.Constraint("Vertical", 0))
sketch9.addConstraint(Sketcher.Constraint("Horizontal", 1))
sketch9.addConstraint(Sketcher.Constraint("Vertical", 3))
sketch9.addConstraint(Sketcher.Constraint("Horizontal", 4))
sketch9.addConstraint(Sketcher.Constraint("Vertical", 5))
sketch9.addConstraint(Sketcher.Constraint("Coincident", 5, 1, 0, 2))
sketch9.addConstraint(Sketcher.Constraint("Horizontal", 3, 2, 5, 2))
sketch9.addConstraint(Sketcher.Constraint("Angle", 2, Q("-135 deg")))
sketch9.addConstraint(Sketcher.Constraint("DistanceY", 0, 1, 0, 2, Q("2.5 mm")))
sketch9.addConstraint(Sketcher.Constraint("DistanceX", 1, 1, 1, 2, Q("4.48 mm")))
sketch9.addConstraint(Sketcher.Constraint("DistanceX", 4, 2, 4, 1, Q("2.25 mm")))
sketch9.addConstraint(Sketcher.Constraint("DistanceX", 0, 2, -1, 1, Q("83.5 mm")))
sketch9.addConstraint(Sketcher.Constraint("DistanceY", -1, 1, 0, 2, Q("1.25 mm")))
sketch9.setExpression("Constraints[13]", "Params.sketch9_height")
sketch9.setExpression("Constraints[14]", "Params.sketch9_width")
sketch9.setExpression("Constraints[15]", "Params.sketch9_width2")
groove7 = doc.addObject("PartDesign::Groove", "Groove006")
body.addObject(groove7)
groove7.Profile = sketch9
groove7.ReferenceAxis = (sketch9, ["Axis0"])
groove7.setExpression("Angle", "Params.groove7_angle")

doc.recompute()
